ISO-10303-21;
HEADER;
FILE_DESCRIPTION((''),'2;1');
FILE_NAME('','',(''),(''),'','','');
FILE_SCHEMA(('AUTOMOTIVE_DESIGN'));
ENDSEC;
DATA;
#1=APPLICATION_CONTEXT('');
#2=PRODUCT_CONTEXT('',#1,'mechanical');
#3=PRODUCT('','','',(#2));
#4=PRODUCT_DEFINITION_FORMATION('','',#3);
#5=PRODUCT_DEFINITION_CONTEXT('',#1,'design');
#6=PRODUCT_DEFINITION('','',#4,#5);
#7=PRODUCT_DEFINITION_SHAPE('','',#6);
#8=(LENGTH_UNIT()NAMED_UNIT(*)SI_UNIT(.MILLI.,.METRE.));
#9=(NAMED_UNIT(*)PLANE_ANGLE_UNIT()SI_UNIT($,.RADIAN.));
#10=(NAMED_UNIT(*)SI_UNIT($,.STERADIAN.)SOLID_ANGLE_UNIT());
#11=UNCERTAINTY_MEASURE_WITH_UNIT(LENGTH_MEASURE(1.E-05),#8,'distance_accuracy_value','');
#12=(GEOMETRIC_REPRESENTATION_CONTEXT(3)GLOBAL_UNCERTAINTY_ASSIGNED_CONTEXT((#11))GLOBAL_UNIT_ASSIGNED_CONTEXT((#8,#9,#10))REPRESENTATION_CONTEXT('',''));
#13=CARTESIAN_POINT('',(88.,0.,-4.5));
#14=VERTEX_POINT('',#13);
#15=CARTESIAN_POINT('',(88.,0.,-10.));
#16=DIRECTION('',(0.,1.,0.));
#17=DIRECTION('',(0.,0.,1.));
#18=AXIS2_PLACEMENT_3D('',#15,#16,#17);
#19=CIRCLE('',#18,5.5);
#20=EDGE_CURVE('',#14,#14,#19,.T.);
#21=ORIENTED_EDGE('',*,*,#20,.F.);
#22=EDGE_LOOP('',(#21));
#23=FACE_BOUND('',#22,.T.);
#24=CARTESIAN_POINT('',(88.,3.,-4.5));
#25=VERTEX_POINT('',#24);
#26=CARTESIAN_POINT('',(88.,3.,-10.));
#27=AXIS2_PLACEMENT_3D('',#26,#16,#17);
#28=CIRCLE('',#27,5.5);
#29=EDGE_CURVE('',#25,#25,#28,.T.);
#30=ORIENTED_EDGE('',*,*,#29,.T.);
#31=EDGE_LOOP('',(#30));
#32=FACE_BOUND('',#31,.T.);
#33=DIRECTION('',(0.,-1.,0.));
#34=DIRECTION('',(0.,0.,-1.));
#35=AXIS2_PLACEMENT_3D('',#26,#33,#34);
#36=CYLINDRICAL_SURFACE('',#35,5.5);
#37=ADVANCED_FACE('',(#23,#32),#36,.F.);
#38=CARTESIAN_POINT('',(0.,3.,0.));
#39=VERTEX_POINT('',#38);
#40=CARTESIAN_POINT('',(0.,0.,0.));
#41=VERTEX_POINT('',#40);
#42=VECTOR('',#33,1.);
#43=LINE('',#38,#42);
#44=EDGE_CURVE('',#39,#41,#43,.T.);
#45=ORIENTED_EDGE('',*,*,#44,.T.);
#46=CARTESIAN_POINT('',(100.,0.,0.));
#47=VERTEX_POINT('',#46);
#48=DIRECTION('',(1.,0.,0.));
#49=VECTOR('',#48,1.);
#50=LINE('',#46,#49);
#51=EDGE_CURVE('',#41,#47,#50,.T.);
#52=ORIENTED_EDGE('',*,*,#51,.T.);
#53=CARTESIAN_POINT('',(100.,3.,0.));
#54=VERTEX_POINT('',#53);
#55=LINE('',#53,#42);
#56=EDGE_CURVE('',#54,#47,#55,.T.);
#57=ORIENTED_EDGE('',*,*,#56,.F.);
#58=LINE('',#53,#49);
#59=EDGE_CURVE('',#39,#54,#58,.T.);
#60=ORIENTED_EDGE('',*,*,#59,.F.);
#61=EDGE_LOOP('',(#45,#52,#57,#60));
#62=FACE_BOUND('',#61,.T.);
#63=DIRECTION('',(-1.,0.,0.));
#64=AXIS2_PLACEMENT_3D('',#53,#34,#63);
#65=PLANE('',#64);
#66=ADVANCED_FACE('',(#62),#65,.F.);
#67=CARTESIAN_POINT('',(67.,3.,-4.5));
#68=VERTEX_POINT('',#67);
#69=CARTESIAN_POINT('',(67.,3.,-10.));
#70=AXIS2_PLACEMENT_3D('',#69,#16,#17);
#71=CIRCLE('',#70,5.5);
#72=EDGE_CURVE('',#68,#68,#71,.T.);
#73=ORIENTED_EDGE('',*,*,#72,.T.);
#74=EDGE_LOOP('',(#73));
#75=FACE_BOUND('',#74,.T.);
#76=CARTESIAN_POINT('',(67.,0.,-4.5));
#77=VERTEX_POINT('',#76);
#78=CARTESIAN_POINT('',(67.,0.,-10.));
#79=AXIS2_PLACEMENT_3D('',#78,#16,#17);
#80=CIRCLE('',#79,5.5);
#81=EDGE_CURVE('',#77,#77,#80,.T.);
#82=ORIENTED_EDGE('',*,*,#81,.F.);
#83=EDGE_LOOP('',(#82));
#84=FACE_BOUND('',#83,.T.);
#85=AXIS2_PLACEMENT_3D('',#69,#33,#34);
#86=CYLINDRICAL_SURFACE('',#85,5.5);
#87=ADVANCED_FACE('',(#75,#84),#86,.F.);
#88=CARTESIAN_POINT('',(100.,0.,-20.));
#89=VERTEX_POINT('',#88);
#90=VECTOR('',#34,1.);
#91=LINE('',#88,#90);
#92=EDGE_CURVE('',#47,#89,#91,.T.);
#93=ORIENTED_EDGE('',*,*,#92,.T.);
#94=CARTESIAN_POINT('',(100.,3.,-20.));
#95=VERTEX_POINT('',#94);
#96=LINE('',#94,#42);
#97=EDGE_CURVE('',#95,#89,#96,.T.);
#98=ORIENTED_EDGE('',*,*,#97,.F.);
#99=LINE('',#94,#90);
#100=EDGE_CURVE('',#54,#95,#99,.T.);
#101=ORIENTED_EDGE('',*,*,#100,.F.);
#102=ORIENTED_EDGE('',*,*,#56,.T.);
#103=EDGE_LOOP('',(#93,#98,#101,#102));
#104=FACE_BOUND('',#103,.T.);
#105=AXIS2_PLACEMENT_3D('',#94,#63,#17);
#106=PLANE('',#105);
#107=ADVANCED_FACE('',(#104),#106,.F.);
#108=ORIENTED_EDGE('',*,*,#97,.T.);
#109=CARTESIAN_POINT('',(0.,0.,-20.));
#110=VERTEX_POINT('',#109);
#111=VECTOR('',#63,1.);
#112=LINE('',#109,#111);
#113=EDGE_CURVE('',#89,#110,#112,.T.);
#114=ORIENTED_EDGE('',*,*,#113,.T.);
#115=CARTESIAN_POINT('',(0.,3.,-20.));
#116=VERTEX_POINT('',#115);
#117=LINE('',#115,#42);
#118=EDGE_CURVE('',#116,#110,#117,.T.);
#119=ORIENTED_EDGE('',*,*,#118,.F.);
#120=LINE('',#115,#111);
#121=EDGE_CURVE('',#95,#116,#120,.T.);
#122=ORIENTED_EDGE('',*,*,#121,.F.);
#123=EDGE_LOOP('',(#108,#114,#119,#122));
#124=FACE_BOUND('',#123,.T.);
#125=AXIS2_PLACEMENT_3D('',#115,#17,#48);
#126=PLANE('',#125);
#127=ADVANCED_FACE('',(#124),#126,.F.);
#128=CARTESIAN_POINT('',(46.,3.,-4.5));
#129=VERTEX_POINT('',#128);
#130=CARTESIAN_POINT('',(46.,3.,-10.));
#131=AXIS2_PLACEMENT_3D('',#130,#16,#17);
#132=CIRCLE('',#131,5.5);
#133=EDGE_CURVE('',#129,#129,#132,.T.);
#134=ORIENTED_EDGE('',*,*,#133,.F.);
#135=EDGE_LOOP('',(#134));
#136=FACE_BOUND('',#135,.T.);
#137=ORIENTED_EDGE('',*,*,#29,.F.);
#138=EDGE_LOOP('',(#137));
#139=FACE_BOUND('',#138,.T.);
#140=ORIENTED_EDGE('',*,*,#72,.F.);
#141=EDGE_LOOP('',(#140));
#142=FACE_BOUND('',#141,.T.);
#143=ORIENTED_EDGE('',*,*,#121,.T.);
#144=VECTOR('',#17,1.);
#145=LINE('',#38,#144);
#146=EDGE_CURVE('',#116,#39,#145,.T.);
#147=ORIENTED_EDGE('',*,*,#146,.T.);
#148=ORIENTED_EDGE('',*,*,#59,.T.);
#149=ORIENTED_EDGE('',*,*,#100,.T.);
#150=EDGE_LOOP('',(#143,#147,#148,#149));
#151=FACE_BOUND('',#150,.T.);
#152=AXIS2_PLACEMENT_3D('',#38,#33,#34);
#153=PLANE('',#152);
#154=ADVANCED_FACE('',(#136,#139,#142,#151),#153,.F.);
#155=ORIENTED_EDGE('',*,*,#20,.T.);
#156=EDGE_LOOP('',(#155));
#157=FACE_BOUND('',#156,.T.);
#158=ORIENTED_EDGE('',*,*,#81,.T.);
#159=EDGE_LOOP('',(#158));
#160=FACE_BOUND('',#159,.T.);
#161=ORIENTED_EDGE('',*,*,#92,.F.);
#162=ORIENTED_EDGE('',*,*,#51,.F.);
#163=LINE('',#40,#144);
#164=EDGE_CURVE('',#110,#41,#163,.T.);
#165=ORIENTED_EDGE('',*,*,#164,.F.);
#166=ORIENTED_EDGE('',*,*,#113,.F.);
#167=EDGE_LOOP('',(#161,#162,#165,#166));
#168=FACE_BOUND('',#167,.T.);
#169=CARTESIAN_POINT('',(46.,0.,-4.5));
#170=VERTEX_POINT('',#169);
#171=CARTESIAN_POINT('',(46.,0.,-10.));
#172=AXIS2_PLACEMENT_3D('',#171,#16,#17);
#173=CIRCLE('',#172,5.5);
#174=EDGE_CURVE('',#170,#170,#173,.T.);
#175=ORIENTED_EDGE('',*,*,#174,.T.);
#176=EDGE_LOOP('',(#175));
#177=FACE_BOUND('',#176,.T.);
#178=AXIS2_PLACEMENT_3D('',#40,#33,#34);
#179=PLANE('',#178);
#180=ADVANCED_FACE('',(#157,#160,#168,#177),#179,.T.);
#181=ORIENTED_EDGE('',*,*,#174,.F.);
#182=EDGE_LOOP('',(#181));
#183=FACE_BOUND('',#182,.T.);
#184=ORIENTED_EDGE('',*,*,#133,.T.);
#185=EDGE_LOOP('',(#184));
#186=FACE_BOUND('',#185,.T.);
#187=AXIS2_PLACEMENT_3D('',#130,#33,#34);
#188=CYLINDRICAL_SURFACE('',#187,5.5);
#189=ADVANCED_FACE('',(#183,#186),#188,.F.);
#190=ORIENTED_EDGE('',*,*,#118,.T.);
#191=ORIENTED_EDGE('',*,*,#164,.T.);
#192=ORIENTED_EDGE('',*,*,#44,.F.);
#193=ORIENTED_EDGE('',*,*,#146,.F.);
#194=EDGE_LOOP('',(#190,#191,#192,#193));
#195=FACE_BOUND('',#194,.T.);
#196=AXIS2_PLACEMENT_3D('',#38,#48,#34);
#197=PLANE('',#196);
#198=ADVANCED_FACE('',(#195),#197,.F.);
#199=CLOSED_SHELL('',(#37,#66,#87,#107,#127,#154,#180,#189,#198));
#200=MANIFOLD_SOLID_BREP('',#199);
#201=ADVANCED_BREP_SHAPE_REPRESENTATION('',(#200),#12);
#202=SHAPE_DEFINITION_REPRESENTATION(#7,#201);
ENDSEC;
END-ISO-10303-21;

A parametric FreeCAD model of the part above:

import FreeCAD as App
import Part
import Sketcher

V = App.Vector
Q = App.Units.Quantity

doc = App.newDocument("Part")
body = doc.addObject("PartDesign::Body", "Body")

# Sketch on XZ plane
sketch1 = doc.addObject("Sketcher::SketchObject", "Sketch")
body.addObject(sketch1)
sketch1.AttachmentSupport = (doc.XZ_Plane, [""])
sketch1.MapMode = "FlatFace"
sketch1.addGeometry([
    Part.LineSegment(V(0, -20, 0), V(0, 0, 0)),  # 0
    Part.LineSegment(V(0, 0, 0), V(100, 0, 0)),  # 1
    Part.LineSegment(V(100, 0, 0), V(100, -20, 0)),  # 2
    Part.LineSegment(V(100, -20, 0), V(0, -20, 0)),  # 3
    Part.Circle(V(46, -10, 0), V(0, 0, 1), 6),  # 4
    Part.Circle(V(67, -10, 0), V(0, 0, 1), 6),  # 5
    Part.Circle(V(88, -10, 0), V(0, 0, 1), 6),  # 6
], False)
sketch1.addConstraint([
    Sketcher.Constraint("Coincident", 0, 2, 1, 1),
    Sketcher.Constraint("Coincident", 1, 2, 2, 1),
    Sketcher.Constraint("Coincident", 2, 2, 3, 1),
    Sketcher.Constraint("Coincident", 3, 2, 0, 1),
    Sketcher.Constraint("Vertical", 0),
    Sketcher.Constraint("Horizontal", 1),
    Sketcher.Constraint("Vertical", 2),
    Sketcher.Constraint("Horizontal", 3),
    Sketcher.Constraint("Coincident", 0, 2, -1, 1),
    Sketcher.Constraint("Equal", 4, 5),
    Sketcher.Constraint("Equal", 5, 6),
    Sketcher.Constraint("Horizontal", 4, 3, 5, 3),
    Sketcher.Constraint("Horizontal", 5, 3, 6, 3),
    Sketcher.Constraint("Diameter", 4, Q("11 mm")),
    Sketcher.Constraint("DistanceX", 1, 1, 1, 2, Q("100 mm")),
    Sketcher.Constraint("DistanceY", 0, 1, 0, 2, Q("20 mm")),
    Sketcher.Constraint("DistanceX", -1, 1, 4, 3, Q("46 mm")),
    Sketcher.Constraint("DistanceY", 4, 3, -1, 1, Q("10 mm")),
    Sketcher.Constraint("DistanceX", -1, 1, 5, 3, Q("67 mm")),
    Sketcher.Constraint("DistanceX", -1, 1, 6, 3, Q("88 mm")),
])
pad1 = doc.addObject("PartDesign::Pad", "Pad")
body.addObject(pad1)
pad1.Profile = sketch1
pad1.Length = 3
pad1.Reversed = True

doc.recompute()
